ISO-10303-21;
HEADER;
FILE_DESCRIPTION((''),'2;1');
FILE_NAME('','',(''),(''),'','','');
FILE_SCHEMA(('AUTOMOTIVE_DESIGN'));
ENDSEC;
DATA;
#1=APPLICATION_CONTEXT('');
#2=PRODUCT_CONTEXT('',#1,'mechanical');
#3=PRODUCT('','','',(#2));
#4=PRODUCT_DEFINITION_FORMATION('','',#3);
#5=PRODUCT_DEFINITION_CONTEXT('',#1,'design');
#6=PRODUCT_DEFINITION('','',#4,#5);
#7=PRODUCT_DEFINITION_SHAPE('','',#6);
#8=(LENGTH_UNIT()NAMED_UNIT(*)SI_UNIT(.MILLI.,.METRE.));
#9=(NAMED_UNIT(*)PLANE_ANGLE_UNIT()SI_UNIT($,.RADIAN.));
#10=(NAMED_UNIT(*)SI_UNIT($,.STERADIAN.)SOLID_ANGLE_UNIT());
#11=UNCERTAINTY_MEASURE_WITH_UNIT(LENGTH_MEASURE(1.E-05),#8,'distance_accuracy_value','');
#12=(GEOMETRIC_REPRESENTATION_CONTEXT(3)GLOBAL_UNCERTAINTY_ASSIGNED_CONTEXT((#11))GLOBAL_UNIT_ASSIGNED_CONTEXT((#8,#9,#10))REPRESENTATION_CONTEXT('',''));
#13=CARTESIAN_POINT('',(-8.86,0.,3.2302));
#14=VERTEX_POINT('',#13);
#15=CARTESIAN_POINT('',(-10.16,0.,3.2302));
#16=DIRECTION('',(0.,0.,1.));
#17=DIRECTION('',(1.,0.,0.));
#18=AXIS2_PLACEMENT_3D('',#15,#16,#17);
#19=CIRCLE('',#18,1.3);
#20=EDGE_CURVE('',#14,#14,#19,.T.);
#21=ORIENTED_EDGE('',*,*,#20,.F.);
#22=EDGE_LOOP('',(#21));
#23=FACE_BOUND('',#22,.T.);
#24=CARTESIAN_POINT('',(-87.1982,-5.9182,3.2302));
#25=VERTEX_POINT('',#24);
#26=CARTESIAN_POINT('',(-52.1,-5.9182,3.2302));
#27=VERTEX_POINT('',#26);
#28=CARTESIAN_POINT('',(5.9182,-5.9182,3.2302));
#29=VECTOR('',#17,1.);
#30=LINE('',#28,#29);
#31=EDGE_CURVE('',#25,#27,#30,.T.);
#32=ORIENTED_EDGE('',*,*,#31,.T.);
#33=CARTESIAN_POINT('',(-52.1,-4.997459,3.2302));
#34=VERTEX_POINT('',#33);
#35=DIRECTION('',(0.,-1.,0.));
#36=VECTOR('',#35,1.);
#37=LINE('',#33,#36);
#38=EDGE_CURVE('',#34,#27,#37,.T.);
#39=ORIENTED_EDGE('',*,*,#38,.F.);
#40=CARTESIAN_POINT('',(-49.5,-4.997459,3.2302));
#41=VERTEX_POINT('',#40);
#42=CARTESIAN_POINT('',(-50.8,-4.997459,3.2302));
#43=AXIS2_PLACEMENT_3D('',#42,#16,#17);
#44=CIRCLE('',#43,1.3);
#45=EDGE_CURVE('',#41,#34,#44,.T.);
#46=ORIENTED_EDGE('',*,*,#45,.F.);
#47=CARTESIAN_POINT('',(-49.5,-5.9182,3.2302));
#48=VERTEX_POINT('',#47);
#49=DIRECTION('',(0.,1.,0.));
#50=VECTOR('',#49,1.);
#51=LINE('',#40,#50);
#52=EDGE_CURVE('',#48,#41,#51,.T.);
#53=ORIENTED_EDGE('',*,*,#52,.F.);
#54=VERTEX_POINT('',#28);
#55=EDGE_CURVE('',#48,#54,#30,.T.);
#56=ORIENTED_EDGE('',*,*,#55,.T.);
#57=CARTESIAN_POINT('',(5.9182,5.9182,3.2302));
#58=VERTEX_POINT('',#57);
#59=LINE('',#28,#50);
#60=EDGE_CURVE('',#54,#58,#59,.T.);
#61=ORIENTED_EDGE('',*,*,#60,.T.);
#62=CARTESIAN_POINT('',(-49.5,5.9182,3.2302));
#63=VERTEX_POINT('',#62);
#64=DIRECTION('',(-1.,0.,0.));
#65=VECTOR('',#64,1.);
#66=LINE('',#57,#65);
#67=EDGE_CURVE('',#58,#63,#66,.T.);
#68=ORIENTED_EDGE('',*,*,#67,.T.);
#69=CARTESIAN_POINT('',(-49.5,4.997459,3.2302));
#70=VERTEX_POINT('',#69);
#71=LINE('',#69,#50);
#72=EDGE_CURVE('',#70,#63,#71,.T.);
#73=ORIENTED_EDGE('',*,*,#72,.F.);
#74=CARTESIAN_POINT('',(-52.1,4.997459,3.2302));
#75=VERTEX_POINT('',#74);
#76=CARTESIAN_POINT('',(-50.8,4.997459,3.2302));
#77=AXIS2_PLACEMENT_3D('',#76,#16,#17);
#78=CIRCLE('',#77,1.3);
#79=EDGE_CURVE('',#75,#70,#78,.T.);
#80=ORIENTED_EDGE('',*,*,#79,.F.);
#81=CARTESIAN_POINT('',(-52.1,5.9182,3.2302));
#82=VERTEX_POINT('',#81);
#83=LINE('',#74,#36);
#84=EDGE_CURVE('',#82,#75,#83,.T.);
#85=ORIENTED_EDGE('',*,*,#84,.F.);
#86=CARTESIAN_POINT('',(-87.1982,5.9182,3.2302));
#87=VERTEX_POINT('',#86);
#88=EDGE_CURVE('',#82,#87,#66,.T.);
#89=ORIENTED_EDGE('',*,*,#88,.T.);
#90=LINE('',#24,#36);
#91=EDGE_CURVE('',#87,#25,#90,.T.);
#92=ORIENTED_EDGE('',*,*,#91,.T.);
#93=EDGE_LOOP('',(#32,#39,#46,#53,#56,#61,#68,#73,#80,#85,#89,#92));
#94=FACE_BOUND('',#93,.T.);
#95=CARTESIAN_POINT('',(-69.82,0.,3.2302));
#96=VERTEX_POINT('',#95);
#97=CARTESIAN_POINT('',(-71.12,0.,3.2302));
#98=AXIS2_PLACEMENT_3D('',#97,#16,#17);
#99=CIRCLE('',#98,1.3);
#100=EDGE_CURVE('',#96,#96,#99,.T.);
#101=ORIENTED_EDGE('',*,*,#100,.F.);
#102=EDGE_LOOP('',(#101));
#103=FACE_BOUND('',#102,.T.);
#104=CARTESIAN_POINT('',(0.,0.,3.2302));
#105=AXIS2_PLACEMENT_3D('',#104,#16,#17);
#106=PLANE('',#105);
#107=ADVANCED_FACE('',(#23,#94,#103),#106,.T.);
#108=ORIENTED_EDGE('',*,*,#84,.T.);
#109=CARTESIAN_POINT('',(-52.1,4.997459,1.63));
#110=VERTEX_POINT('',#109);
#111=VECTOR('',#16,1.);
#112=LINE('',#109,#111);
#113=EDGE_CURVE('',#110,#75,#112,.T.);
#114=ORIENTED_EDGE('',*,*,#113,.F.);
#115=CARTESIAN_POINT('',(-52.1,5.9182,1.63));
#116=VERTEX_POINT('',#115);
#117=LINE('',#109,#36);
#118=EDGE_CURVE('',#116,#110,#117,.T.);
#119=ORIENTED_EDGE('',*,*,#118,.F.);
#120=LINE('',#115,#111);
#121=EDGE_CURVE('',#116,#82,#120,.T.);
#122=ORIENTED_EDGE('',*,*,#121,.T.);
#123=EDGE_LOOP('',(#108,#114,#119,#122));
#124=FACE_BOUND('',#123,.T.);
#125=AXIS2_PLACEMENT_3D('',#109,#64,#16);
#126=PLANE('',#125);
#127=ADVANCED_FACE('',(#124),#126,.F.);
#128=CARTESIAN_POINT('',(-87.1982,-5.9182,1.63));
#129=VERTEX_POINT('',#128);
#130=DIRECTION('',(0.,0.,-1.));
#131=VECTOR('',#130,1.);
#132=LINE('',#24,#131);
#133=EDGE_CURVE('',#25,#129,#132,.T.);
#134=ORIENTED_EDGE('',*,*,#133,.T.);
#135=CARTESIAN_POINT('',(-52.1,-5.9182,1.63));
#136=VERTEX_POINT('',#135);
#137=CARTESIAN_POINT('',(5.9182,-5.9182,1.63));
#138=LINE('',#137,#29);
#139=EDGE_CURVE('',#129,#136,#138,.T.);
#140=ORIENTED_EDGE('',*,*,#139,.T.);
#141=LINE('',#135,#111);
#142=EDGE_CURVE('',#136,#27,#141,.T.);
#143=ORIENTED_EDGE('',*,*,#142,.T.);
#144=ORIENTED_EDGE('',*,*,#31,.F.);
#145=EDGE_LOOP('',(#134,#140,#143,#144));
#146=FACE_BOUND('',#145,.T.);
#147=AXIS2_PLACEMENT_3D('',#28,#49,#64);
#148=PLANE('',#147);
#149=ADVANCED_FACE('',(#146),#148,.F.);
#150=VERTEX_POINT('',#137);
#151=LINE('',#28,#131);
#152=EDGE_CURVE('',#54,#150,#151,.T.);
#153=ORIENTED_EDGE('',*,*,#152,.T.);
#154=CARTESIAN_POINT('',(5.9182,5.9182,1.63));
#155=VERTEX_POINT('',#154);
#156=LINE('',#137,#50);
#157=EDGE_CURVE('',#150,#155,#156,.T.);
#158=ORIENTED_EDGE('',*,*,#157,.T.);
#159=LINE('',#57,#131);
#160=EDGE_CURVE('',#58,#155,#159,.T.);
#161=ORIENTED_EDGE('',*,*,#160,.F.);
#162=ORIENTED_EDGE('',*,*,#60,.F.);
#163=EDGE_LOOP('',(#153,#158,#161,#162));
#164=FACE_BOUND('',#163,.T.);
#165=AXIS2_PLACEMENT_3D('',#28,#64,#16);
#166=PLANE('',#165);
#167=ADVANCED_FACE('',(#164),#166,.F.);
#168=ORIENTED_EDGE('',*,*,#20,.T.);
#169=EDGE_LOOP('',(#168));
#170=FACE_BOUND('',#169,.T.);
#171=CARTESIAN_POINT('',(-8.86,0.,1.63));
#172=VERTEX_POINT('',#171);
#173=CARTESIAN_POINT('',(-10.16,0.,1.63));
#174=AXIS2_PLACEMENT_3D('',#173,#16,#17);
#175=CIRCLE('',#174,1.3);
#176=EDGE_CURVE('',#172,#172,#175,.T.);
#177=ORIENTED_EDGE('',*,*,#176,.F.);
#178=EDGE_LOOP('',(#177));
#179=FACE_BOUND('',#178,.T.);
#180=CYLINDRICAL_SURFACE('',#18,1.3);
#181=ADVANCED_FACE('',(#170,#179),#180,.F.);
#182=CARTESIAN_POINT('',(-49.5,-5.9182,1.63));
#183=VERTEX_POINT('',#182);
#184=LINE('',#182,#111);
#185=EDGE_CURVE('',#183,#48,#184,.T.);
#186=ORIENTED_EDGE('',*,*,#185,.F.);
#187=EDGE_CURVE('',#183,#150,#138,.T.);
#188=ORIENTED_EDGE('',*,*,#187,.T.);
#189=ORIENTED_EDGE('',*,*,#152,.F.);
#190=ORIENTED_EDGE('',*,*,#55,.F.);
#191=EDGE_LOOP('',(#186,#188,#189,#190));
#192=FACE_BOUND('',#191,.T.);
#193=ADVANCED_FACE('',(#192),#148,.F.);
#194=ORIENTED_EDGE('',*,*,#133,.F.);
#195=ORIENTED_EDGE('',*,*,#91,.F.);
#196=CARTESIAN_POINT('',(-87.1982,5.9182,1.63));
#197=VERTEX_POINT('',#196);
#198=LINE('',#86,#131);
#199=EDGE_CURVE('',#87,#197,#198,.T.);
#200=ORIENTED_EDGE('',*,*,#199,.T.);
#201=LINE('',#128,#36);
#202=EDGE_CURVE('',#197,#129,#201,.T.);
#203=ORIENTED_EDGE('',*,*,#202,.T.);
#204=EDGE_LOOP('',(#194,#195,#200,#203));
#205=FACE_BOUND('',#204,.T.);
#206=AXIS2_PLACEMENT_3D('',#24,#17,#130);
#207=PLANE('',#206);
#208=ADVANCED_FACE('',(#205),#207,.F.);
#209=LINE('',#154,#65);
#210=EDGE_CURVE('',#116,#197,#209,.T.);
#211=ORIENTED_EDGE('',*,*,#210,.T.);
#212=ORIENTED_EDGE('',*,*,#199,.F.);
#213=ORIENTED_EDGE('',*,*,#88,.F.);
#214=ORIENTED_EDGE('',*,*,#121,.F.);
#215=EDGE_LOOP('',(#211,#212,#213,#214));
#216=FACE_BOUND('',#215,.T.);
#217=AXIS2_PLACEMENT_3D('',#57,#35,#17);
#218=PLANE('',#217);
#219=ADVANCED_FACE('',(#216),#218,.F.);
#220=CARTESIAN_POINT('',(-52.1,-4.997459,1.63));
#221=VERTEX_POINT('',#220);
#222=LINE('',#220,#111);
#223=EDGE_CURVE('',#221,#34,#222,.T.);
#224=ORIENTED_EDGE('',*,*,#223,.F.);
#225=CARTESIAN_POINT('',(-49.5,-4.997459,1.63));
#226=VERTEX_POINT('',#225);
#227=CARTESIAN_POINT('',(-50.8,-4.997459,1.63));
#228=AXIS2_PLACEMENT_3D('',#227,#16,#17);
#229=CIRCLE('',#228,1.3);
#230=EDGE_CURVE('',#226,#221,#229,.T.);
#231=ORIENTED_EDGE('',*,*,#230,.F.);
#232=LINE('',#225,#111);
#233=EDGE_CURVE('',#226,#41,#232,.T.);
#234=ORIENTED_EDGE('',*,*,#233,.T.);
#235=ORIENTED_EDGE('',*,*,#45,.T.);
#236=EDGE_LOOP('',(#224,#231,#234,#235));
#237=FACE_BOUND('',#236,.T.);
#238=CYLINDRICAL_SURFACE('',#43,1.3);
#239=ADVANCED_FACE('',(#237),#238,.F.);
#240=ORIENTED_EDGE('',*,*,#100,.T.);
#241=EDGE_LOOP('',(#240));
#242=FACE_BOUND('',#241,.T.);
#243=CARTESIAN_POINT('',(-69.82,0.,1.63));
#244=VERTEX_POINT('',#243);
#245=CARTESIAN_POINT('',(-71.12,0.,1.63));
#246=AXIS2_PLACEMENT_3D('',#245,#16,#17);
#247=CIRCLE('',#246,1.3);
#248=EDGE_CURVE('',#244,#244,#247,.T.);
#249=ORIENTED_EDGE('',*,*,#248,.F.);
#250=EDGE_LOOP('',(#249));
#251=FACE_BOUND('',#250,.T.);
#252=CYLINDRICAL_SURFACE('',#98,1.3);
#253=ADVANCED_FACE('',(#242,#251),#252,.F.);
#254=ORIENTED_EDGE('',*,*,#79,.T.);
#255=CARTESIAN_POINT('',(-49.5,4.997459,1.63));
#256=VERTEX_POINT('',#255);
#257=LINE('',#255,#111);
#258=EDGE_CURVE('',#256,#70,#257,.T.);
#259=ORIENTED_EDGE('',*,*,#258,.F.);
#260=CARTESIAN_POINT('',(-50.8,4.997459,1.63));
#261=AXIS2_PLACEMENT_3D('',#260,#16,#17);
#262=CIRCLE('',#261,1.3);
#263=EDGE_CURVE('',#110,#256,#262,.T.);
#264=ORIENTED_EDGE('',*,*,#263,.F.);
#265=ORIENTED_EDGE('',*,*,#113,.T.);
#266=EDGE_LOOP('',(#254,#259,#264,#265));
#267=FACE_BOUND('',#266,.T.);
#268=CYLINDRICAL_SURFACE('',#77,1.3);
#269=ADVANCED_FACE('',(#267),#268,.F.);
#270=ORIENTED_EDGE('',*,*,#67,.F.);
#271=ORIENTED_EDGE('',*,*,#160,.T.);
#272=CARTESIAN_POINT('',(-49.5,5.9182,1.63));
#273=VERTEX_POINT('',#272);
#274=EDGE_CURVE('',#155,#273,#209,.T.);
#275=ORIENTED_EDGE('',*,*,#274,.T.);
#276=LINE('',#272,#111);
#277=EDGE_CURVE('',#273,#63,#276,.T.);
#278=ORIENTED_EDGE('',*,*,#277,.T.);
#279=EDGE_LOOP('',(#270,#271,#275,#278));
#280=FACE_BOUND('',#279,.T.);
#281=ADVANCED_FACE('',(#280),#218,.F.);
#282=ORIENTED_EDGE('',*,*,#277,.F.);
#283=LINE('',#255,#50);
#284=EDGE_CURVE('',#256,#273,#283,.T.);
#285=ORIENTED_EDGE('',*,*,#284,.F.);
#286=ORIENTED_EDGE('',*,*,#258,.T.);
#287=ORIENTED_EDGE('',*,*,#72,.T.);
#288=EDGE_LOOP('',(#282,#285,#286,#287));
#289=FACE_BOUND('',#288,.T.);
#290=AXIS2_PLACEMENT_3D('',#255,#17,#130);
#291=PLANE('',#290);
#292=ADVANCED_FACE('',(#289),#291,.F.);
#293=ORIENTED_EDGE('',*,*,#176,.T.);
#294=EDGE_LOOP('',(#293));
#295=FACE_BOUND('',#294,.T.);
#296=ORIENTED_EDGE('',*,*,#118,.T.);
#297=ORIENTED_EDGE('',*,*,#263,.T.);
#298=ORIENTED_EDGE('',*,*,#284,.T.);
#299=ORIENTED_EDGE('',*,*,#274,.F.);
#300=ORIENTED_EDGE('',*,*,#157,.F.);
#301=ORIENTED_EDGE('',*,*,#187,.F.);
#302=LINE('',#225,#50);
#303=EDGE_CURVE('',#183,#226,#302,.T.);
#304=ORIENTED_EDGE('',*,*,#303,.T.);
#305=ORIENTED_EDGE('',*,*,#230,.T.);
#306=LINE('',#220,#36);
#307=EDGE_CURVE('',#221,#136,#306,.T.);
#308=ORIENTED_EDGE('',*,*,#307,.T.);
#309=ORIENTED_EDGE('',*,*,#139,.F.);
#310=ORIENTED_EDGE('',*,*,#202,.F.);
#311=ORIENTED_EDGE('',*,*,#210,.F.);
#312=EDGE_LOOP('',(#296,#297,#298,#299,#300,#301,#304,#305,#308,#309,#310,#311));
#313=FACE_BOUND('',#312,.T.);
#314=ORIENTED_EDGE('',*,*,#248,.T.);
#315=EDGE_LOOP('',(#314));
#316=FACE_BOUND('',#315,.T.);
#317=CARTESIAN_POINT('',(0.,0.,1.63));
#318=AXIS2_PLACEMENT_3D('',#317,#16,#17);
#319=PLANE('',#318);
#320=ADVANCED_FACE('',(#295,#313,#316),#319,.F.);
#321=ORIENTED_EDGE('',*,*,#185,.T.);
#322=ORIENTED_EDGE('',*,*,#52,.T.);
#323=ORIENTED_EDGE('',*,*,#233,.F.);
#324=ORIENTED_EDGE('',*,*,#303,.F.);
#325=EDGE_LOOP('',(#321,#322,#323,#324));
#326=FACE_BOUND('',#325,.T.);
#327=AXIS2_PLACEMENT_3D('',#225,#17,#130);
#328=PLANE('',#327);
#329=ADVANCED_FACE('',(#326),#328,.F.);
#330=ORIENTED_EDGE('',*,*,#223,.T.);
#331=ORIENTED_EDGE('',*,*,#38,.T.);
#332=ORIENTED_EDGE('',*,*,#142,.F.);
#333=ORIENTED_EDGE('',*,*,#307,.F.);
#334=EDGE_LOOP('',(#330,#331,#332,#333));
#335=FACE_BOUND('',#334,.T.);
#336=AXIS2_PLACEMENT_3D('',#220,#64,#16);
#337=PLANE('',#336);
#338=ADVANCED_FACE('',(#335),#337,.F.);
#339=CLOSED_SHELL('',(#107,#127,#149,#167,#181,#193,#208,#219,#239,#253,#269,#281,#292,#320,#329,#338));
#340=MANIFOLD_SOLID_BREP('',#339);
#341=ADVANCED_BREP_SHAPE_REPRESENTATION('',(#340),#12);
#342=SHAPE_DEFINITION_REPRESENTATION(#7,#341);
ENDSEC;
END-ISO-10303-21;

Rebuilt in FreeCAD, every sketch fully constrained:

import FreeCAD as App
import Part
import Sketcher

V = App.Vector
Q = App.Units.Quantity

doc = App.newDocument("Part")
body = doc.addObject("PartDesign::Body", "Body")

# Sketch on XY plane
sketch1 = doc.addObject("Sketcher::SketchObject", "Sketch")
body.addObject(sketch1)
sketch1.AttachmentSupport = (doc.XY_Plane, [""])
sketch1.MapMode = "FlatFace"
sketch1.AttachmentOffset = App.Placement(V(0, 0, 1.63), App.Rotation())
sketch1.addGeometry(Part.LineSegment(V(-87.1982, 5.9182, 0), V(-87.1982, -5.9182, 0)), False)
sketch1.addGeometry(Part.LineSegment(V(-87.1982, -5.9182, 0), V(5.9182, -5.9182, 0)), False)
sketch1.addGeometry(Part.LineSegment(V(5.9182, -5.9182, 0), V(5.9182, 5.9182, 0)), False)
sketch1.addGeometry(Part.LineSegment(V(5.9182, 5.9182, 0), V(-87.1982, 5.9182, 0)), False)
sketch1.addConstraint(Sketcher.Constraint("Coincident", 0, 2, 1, 1))
sketch1.addConstraint(Sketcher.Constraint("Coincident", 1, 2, 2, 1))
sketch1.addConstraint(Sketcher.Constraint("Coincident", 2, 2, 3, 1))
sketch1.addConstraint(Sketcher.Constraint("Coincident", 3, 2, 0, 1))
sketch1.addConstraint(Sketcher.Constraint("Vertical", 0))
sketch1.addConstraint(Sketcher.Constraint("Horizontal", 1))
sketch1.addConstraint(Sketcher.Constraint("Vertical", 2))
sketch1.addConstraint(Sketcher.Constraint("Horizontal", 3))
sketch1.addConstraint(Sketcher.Constraint("DistanceX", 1, 1, 1, 2, Q("3.666 in")))
sketch1.addConstraint(Sketcher.Constraint("DistanceY", 0, 2, 0, 1, Q("0.466 in")))
sketch1.addConstraint(Sketcher.Constraint("DistanceX", 0, 2, -1, 1, Q("3.433 in")))
sketch1.addConstraint(Sketcher.Constraint("DistanceY", 0, 2, -1, 1, Q("0.233 in")))
pad1 = doc.addObject("PartDesign::Pad", "Pad")
body.addObject(pad1)
pad1.Profile = sketch1
pad1.Length = Q("0.063 in")

# Sketch on XY plane
sketch2 = doc.addObject("Sketcher::SketchObject", "Sketch001")
body.addObject(sketch2)
sketch2.AttachmentSupport = (doc.XY_Plane, [""])
sketch2.MapMode = "FlatFace"
sketch2.AttachmentOffset = App.Placement(V(0, 0, 3.2302), App.Rotation())
sketch2.addGeometry(Part.Circle(V(-50.8, 4.997459, 0), V(0, 0, 1), 1.3), False)
sketch2.addGeometry(Part.Circle(V(-50.8, -4.997459, 0), V(0, 0, 1), 1.3), False)
sketch2.addGeometry(Part.Circle(V(-10.16, 0, 0), V(0, 0, 1), 1.3), False)
sketch2.addGeometry(Part.Circle(V(-71.12, 0, 0), V(0, 0, 1), 1.3), False)
sketch2.addConstraint(Sketcher.Constraint("Equal", 0, 1))
sketch2.addConstraint(Sketcher.Constraint("Equal", 1, 2))
sketch2.addConstraint(Sketcher.Constraint("Equal", 2, 3))
sketch2.addConstraint(Sketcher.Constraint("Symmetric", 0, 3, 1, 3, -1))
sketch2.addConstraint(Sketcher.Constraint("PointOnObject", 2, 3, -1))
sketch2.addConstraint(Sketcher.Constraint("PointOnObject", 3, 3, -1))
sketch2.addConstraint(Sketcher.Constraint("DistanceX", 0, 3, -1, 1, Q("2 in")))
sketch2.addConstraint(Sketcher.Constraint("DistanceX", 2, 3, -1, 1, Q("0.4 in")))
sketch2.addConstraint(Sketcher.Constraint("DistanceX", 3, 3, -1, 1, Q("2.8 in")))
sketch2.addConstraint(Sketcher.Constraint("Diameter", 0, 2.6))
sketch2.addConstraint(Sketcher.Constraint("DistanceY", -1, 1, 0, 3, 4.997459))
doc.recompute()
hole = doc.addObject("PartDesign::Hole", "Hole")
body.addObject(hole)
hole.Profile = sketch2
hole.ThreadType = "None"
hole.Diameter = 2.6
hole.DepthType = "ThroughAll"

# Sketch on XY plane
sketch3 = doc.addObject("Sketcher::SketchObject", "Sketch002")
body.addObject(sketch3)
sketch3.AttachmentSupport = (doc.XY_Plane, [""])
sketch3.MapMode = "FlatFace"
sketch3.AttachmentOffset = App.Placement(V(0, 0, 3.2302), App.Rotation())
sketch3.addGeometry(Part.LineSegment(V(-52.1, 5.9182, 0), V(-52.1, 4.997459, 0)), False)
sketch3.addGeometry(Part.LineSegment(V(-52.1, 4.997459, 0), V(-49.5, 4.997459, 0)), False)
sketch3.addGeometry(Part.LineSegment(V(-49.5, 4.997459, 0), V(-49.5, 5.9182, 0)), False)
sketch3.addGeometry(Part.LineSegment(V(-49.5, 5.9182, 0), V(-52.1, 5.9182, 0)), False)
sketch3.addGeometry(Part.LineSegment(V(-52.1, -4.997459, 0), V(-52.1, -5.9182, 0)), False)
sketch3.addGeometry(Part.LineSegment(V(-52.1, -5.9182, 0), V(-49.5, -5.9182, 0)), False)
sketch3.addGeometry(Part.LineSegment(V(-49.5, -5.9182, 0), V(-49.5, -4.997459, 0)), False)
sketch3.addGeometry(Part.LineSegment(V(-49.5, -4.997459, 0), V(-52.1, -4.997459, 0)), False)
sketch3.addConstraint(Sketcher.Constraint("Coincident", 0, 2, 1, 1))
sketch3.addConstraint(Sketcher.Constraint("Coincident", 1, 2, 2, 1))
sketch3.addConstraint(Sketcher.Constraint("Coincident", 2, 2, 3, 1))
sketch3.addConstraint(Sketcher.Constraint("Coincident", 3, 2, 0, 1))
sketch3.addConstraint(Sketcher.Constraint("Coincident", 4, 2, 5, 1))
sketch3.addConstraint(Sketcher.Constraint("Coincident", 5, 2, 6, 1))
sketch3.addConstraint(Sketcher.Constraint("Coincident", 6, 2, 7, 1))
sketch3.addConstraint(Sketcher.Constraint("Coincident", 7, 2, 4, 1))
sketch3.addConstraint(Sketcher.Constraint("Vertical", 0))
sketch3.addConstraint(Sketcher.Constraint("Horizontal", 1))
sketch3.addConstraint(Sketcher.Constraint("Vertical", 2))
sketch3.addConstraint(Sketcher.Constraint("Horizontal", 3))
sketch3.addConstraint(Sketcher.Constraint("Vertical", 4))
sketch3.addConstraint(Sketcher.Constraint("Horizontal", 5))
sketch3.addConstraint(Sketcher.Constraint("Vertical", 6))
sketch3.addConstraint(Sketcher.Constraint("Horizontal", 7))
sketch3.addConstraint(Sketcher.Constraint("Symmetric", 3, 2, 4, 2, -1))
sketch3.addConstraint(Sketcher.Constraint("Symmetric", 1, 2, 6, 2, -1))
sketch3.addConstraint(Sketcher.Constraint("DistanceY", -1, 1, 2, 2, Q("0.233 in")))
sketch3.addConstraint(Sketcher.Constraint("DistanceX", 1, 1, 1, 2, 2.6))
sketch3.addConstraint(Sketcher.Constraint("DistanceY", 0, 2, 0, 1, 0.920741))
sketch3.addConstraint(Sketcher.Constraint("DistanceX", 0, 2, -1, 1, 52.1))
pocket1 = doc.addObject("PartDesign::Pocket", "Pocket")
body.addObject(pocket1)
pocket1.Profile = sketch3
pocket1.Type = "ThroughAll"

doc.recompute()
